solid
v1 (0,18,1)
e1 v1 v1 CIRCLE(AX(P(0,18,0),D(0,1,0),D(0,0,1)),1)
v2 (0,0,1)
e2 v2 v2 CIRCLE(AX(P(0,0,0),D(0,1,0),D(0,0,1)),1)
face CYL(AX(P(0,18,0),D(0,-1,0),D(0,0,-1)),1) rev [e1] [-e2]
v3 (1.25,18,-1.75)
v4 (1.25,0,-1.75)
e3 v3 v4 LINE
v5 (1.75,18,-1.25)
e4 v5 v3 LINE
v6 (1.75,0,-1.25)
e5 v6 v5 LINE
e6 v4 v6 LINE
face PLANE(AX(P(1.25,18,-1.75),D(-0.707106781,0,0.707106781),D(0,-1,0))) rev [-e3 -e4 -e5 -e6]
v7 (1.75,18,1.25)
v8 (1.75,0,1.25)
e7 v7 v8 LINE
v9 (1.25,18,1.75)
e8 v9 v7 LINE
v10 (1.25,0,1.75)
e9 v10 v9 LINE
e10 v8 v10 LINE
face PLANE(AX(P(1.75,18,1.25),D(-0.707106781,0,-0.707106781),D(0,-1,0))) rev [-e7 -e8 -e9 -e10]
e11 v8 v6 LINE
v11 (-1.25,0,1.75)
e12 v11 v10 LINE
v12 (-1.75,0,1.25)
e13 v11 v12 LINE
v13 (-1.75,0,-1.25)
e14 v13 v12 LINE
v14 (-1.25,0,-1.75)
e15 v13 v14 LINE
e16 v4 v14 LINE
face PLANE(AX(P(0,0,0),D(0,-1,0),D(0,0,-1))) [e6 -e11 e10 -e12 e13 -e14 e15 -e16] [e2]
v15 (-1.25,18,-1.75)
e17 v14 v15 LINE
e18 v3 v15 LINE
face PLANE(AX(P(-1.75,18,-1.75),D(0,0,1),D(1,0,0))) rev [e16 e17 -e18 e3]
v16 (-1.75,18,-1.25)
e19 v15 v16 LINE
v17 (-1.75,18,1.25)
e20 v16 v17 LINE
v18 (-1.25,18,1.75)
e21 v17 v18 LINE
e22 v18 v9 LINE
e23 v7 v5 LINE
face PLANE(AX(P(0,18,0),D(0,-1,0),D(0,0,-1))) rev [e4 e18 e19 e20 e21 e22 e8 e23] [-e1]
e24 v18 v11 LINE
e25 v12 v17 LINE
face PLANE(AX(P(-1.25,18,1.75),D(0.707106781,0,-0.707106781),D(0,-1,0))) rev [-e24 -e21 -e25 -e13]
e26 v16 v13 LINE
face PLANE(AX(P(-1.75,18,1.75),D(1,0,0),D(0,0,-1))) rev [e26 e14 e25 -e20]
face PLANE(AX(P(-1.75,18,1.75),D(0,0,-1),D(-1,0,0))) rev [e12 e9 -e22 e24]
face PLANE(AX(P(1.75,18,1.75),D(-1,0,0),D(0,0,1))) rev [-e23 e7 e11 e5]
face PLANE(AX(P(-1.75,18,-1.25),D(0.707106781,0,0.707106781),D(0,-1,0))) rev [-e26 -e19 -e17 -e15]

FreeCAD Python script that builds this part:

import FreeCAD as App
import Part
import Sketcher

V = App.Vector
Q = App.Units.Quantity


def edges_at(feature, points):
    """Names of the edges that pass closest to the given points."""
    edges = feature.Shape.Edges
    near = lambda p: min(range(len(edges)), key=lambda i: edges[i].distToShape(Part.Vertex(*p))[0])
    return sorted({f"Edge{near(p) + 1}" for p in points})

doc = App.newDocument("Part")
params = doc.addObject("Spreadsheet::Sheet", "Params")
for row, (alias, value) in enumerate([
    ("sketch1_diameter", "2 mm"),
    ("sketch1_width", "3.5 mm"),
    ("pad1_length", "18 mm"),
    ("chamfer_size", "0.5 mm"),
], start=1):
    params.set(f"A{row}", alias)
    params.set(f"B{row}", "=" + value)
    params.setAlias(f"B{row}", alias)

body = doc.addObject("PartDesign::Body", "Body")

# Sketch on XZ plane
sketch1 = body.newObject("Sketcher::SketchObject", "Sketch")
sketch1.AttachmentSupport = (doc.getObject("XZ_Plane"), [""])
sketch1.MapMode = "FlatFace"
sketch1.addGeometry([
    Part.LineSegment(V(-1.75, -1.75, 0), V(-1.75, 1.75, 0)),  # 0
    Part.LineSegment(V(-1.75, 1.75, 0), V(1.75, 1.75, 0)),  # 1
    Part.LineSegment(V(1.75, 1.75, 0), V(1.75, -1.75, 0)),  # 2
    Part.LineSegment(V(1.75, -1.75, 0), V(-1.75, -1.75, 0)),  # 3
    Part.Circle(V(0, 0, 0), V(0, 0, 1), 1),  # 4
], False)
sketch1.addConstraint([
    Sketcher.Constraint("Coincident", 0, 2, 1, 1),
    Sketcher.Constraint("Coincident", 1, 2, 2, 1),
    Sketcher.Constraint("Coincident", 2, 2, 3, 1),
    Sketcher.Constraint("Coincident", 3, 2, 0, 1),
    Sketcher.Constraint("Vertical", 0),
    Sketcher.Constraint("Horizontal", 1),
    Sketcher.Constraint("Vertical", 2),
    Sketcher.Constraint("Horizontal", 3),
    Sketcher.Constraint("Coincident", 4, 3, -1, 1),
    Sketcher.Constraint("Symmetric", 0, 2, 2, 2, -1, 1),
    Sketcher.Constraint("Equal", 3, 0),
    Sketcher.Constraint("Diameter", 4, Q("2 mm")),
    Sketcher.Constraint("DistanceX", 1, 1, 1, 2, Q("3.5 mm")),
])
sketch1.setExpression("Constraints[11]", "Params.sketch1_diameter")
sketch1.setExpression("Constraints[12]", "Params.sketch1_width")
pad1 = body.newObject("PartDesign::Pad", "Pad")
pad1.Profile = sketch1
pad1.setExpression("Length", "Params.pad1_length")
pad1.Reversed = True
doc.recompute()

chamfer = body.newObject("PartDesign::Chamfer", "Chamfer")
chamfer.Base = (pad1, edges_at(pad1, [
    (1.75, 9, 1.75),
    (-1.75, 9, 1.75),
    (-1.75, 9, -1.75),
    (1.75, 9, -1.75),
]))
chamfer.setExpression("Size", "Params.chamfer_size")

doc.recompute()
